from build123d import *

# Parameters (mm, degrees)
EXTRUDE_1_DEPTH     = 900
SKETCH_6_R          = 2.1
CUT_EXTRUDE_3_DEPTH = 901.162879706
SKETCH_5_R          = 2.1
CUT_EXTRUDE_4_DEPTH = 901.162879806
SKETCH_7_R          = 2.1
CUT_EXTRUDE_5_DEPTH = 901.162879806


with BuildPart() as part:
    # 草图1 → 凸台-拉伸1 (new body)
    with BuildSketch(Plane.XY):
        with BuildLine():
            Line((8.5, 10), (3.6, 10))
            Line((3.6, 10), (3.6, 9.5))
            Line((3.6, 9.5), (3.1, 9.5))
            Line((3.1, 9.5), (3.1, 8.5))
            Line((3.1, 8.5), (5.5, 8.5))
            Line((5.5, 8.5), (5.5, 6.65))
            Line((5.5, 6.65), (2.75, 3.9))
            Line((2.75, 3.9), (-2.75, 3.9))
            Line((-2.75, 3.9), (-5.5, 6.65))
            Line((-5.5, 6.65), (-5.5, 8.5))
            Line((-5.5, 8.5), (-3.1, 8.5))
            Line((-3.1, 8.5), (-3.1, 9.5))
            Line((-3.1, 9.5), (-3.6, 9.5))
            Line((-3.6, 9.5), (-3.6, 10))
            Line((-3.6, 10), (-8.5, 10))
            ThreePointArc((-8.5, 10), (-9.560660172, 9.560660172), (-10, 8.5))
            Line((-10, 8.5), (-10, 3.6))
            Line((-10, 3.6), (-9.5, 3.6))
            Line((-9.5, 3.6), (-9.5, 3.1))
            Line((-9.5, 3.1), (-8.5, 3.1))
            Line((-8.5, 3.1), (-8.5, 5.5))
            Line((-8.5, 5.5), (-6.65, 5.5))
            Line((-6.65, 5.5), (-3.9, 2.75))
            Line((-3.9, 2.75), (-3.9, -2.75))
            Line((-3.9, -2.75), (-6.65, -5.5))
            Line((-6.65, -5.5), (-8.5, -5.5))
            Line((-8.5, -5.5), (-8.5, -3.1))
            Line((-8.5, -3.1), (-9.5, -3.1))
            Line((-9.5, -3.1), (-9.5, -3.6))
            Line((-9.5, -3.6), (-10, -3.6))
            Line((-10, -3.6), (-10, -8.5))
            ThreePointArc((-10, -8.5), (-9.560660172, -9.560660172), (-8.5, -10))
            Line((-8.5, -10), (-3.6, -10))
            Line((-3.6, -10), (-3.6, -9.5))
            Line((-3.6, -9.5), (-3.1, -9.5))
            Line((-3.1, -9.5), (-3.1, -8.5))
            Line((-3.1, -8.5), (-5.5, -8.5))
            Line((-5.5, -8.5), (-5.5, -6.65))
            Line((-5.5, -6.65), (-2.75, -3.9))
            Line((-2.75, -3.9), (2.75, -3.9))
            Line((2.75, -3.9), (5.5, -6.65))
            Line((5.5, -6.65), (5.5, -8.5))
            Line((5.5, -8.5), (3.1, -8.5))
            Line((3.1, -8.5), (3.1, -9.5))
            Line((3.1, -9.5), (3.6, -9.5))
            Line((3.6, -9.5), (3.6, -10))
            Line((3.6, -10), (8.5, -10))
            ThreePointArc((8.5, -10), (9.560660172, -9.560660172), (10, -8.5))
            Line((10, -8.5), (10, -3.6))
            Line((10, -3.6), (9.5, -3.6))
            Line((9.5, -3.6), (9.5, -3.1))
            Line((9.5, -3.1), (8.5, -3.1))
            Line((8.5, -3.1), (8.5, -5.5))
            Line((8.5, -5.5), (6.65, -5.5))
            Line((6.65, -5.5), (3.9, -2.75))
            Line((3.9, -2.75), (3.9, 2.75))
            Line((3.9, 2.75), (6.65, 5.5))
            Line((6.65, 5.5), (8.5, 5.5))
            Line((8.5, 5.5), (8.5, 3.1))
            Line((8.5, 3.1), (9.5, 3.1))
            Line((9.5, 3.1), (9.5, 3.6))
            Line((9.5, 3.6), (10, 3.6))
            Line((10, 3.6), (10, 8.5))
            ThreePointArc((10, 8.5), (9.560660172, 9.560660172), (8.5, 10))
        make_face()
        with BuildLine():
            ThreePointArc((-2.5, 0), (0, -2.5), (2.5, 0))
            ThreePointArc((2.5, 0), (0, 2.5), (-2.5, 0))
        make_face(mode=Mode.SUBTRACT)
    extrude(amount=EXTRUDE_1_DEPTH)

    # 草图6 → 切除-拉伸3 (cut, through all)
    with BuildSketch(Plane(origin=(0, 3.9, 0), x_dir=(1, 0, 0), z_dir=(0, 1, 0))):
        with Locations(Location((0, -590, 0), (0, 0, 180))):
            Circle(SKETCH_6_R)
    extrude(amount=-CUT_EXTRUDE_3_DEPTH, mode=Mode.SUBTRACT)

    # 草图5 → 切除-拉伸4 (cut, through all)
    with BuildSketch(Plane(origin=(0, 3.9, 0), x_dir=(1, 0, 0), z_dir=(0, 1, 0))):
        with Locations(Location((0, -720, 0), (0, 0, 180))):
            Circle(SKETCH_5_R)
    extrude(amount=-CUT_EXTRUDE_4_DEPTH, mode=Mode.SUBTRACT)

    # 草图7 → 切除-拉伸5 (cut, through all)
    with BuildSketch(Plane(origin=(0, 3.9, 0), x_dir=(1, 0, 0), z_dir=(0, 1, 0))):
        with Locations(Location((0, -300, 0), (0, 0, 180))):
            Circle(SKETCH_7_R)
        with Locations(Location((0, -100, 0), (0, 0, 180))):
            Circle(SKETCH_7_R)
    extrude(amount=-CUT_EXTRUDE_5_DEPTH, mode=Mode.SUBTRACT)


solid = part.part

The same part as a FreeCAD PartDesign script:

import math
import FreeCAD as App
import Part
import Sketcher

V = App.Vector

doc = App.newDocument("Part")
body = doc.addObject("PartDesign::Body", "Body")

# Sketch on XY plane
sketch1 = body.newObject("Sketcher::SketchObject", "Sketch")
sketch1.AttachmentSupport = (doc.getObject("XY_Plane"), [""])
sketch1.MapMode = "FlatFace"
sketch1.addGeometry(Part.LineSegment(V(8.5, 10, 0), V(3.6, 10, 0)), False)
sketch1.addGeometry(Part.LineSegment(V(3.6, 10, 0), V(3.6, 9.5, 0)), False)
sketch1.addGeometry(Part.LineSegment(V(3.6, 9.5, 0), V(3.1, 9.5, 0)), False)
sketch1.addGeometry(Part.LineSegment(V(3.1, 9.5, 0), V(3.1, 8.5, 0)), False)
sketch1.addGeometry(Part.LineSegment(V(3.1, 8.5, 0), V(5.5, 8.5, 0)), False)
sketch1.addGeometry(Part.LineSegment(V(5.5, 8.5, 0), V(5.5, 6.7, 0)), False)
sketch1.addGeometry(Part.LineSegment(V(5.5, 6.7, 0), V(2.8, 3.9, 0)), False)
sketch1.addGeometry(Part.LineSegment(V(2.8, 3.9, 0), V(-2.8, 3.9, 0)), False)
sketch1.addGeometry(Part.LineSegment(V(-2.8, 3.9, 0), V(-5.5, 6.7, 0)), False)
sketch1.addGeometry(Part.LineSegment(V(-5.5, 6.7, 0), V(-5.5, 8.5, 0)), False)
sketch1.addGeometry(Part.LineSegment(V(-5.5, 8.5, 0), V(-3.1, 8.5, 0)), False)
sketch1.addGeometry(Part.LineSegment(V(-3.1, 8.5, 0), V(-3.1, 9.5, 0)), False)
sketch1.addGeometry(Part.LineSegment(V(-3.1, 9.5, 0), V(-3.6, 9.5, 0)), False)
sketch1.addGeometry(Part.LineSegment(V(-3.6, 9.5, 0), V(-3.6, 10, 0)), False)
sketch1.addGeometry(Part.LineSegment(V(-3.6, 10, 0), V(-8.5, 10, 0)), False)
sketch1.addGeometry(Part.ArcOfCircle(Part.Circle(V(-8.5, 8.5, 0), V(0, 0, 1), 1.5), math.radians(90), math.radians(180)), False)
sketch1.addGeometry(Part.LineSegment(V(-10, 8.5, 0), V(-10, 3.6, 0)), False)
sketch1.addGeometry(Part.LineSegment(V(-10, 3.6, 0), V(-9.5, 3.6, 0)), False)
sketch1.addGeometry(Part.LineSegment(V(-9.5, 3.6, 0), V(-9.5, 3.1, 0)), False)
sketch1.addGeometry(Part.LineSegment(V(-9.5, 3.1, 0), V(-8.5, 3.1, 0)), False)
sketch1.addGeometry(Part.LineSegment(V(-8.5, 3.1, 0), V(-8.5, 5.5, 0)), False)
sketch1.addGeometry(Part.LineSegment(V(-8.5, 5.5, 0), V(-6.7, 5.5, 0)), False)
sketch1.addGeometry(Part.LineSegment(V(-6.7, 5.5, 0), V(-3.9, 2.8, 0)), False)
sketch1.addGeometry(Part.LineSegment(V(-3.9, 2.8, 0), V(-3.9, -2.8, 0)), False)
sketch1.addGeometry(Part.LineSegment(V(-3.9, -2.8, 0), V(-6.7, -5.5, 0)), False)
sketch1.addGeometry(Part.LineSegment(V(-6.7, -5.5, 0), V(-8.5, -5.5, 0)), False)
sketch1.addGeometry(Part.LineSegment(V(-8.5, -5.5, 0), V(-8.5, -3.1, 0)), False)
sketch1.addGeometry(Part.LineSegment(V(-8.5, -3.1, 0), V(-9.5, -3.1, 0)), False)
sketch1.addGeometry(Part.LineSegment(V(-9.5, -3.1, 0), V(-9.5, -3.6, 0)), False)
sketch1.addGeometry(Part.LineSegment(V(-9.5, -3.6, 0), V(-10, -3.6, 0)), False)
sketch1.addGeometry(Part.LineSegment(V(-10, -3.6, 0), V(-10, -8.5, 0)), False)
sketch1.addGeometry(Part.ArcOfCircle(Part.Circle(V(-8.5, -8.5, 0), V(0, 0, 1), 1.5), math.radians(180), math.radians(270)), False)
sketch1.addGeometry(Part.LineSegment(V(-8.5, -10, 0), V(-3.6, -10, 0)), False)
sketch1.addGeometry(Part.LineSegment(V(-3.6, -10, 0), V(-3.6, -9.5, 0)), False)
sketch1.addGeometry(Part.LineSegment(V(-3.6, -9.5, 0), V(-3.1, -9.5, 0)), False)
sketch1.addGeometry(Part.LineSegment(V(-3.1, -9.5, 0), V(-3.1, -8.5, 0)), False)
sketch1.addGeometry(Part.LineSegment(V(-3.1, -8.5, 0), V(-5.5, -8.5, 0)), False)
sketch1.addGeometry(Part.LineSegment(V(-5.5, -8.5, 0), V(-5.5, -6.7, 0)), False)
sketch1.addGeometry(Part.LineSegment(V(-5.5, -6.7, 0), V(-2.8, -3.9, 0)), False)
sketch1.addGeometry(Part.LineSegment(V(-2.8, -3.9, 0), V(2.8, -3.9, 0)), False)
sketch1.addGeometry(Part.LineSegment(V(2.8, -3.9, 0), V(5.5, -6.7, 0)), False)
sketch1.addGeometry(Part.LineSegment(V(5.5, -6.7, 0), V(5.5, -8.5, 0)), False)
sketch1.addGeometry(Part.LineSegment(V(5.5, -8.5, 0), V(3.1, -8.5, 0)), False)
sketch1.addGeometry(Part.LineSegment(V(3.1, -8.5, 0), V(3.1, -9.5, 0)), False)
sketch1.addGeometry(Part.LineSegment(V(3.1, -9.5, 0), V(3.6, -9.5, 0)), False)
sketch1.addGeometry(Part.LineSegment(V(3.6, -9.5, 0), V(3.6, -10, 0)), False)
sketch1.addGeometry(Part.LineSegment(V(3.6, -10, 0), V(8.5, -10, 0)), False)
sketch1.addGeometry(Part.ArcOfCircle(Part.Circle(V(8.5, -8.5, 0), V(0, 0, 1), 1.5), math.radians(-90), math.radians(0)), False)
sketch1.addGeometry(Part.LineSegment(V(10, -8.5, 0), V(10, -3.6, 0)), False)
sketch1.addGeometry(Part.LineSegment(V(10, -3.6, 0), V(9.5, -3.6, 0)), False)
sketch1.addGeometry(Part.LineSegment(V(9.5, -3.6, 0), V(9.5, -3.1, 0)), False)
sketch1.addGeometry(Part.LineSegment(V(9.5, -3.1, 0), V(8.5, -3.1, 0)), False)
sketch1.addGeometry(Part.LineSegment(V(8.5, -3.1, 0), V(8.5, -5.5, 0)), False)
sketch1.addGeometry(Part.LineSegment(V(8.5, -5.5, 0), V(6.7, -5.5, 0)), False)
sketch1.addGeometry(Part.LineSegment(V(6.7, -5.5, 0), V(3.9, -2.8, 0)), False)
sketch1.addGeometry(Part.LineSegment(V(3.9, -2.8, 0), V(3.9, 2.8, 0)), False)
sketch1.addGeometry(Part.LineSegment(V(3.9, 2.8, 0), V(6.7, 5.5, 0)), False)
sketch1.addGeometry(Part.LineSegment(V(6.7, 5.5, 0), V(8.5, 5.5, 0)), False)
sketch1.addGeometry(Part.LineSegment(V(8.5, 5.5, 0), V(8.5, 3.1, 0)), False)
sketch1.addGeometry(Part.LineSegment(V(8.5, 3.1, 0), V(9.5, 3.1, 0)), False)
sketch1.addGeometry(Part.LineSegment(V(9.5, 3.1, 0), V(9.5, 3.6, 0)), False)
sketch1.addGeometry(Part.LineSegment(V(9.5, 3.6, 0), V(10, 3.6, 0)), False)
sketch1.addGeometry(Part.LineSegment(V(10, 3.6, 0), V(10, 8.5, 0)), False)
sketch1.addGeometry(Part.ArcOfCircle(Part.Circle(V(8.5, 8.5, 0), V(0, 0, 1), 1.5), math.radians(0), math.radians(90)), False)
sketch1.addGeometry(Part.Circle(V(0, 0, 0), V(0, 0, 1), 2.5), False)
sketch1.addConstraint(Sketcher.Constraint("Coincident", 0, 2, 1, 1))
sketch1.addConstraint(Sketcher.Constraint("Coincident", 1, 2, 2, 1))
sketch1.addConstraint(Sketcher.Constraint("Coincident", 2, 2, 3, 1))
sketch1.addConstraint(Sketcher.Constraint("Coincident", 3, 2, 4, 1))
sketch1.addConstraint(Sketcher.Constraint("Coincident", 4, 2, 5, 1))
sketch1.addConstraint(Sketcher.Constraint("Coincident", 5, 2, 6, 1))
sketch1.addConstraint(Sketcher.Constraint("Coincident", 6, 2, 7, 1))
sketch1.addConstraint(Sketcher.Constraint("Coincident", 7, 2, 8, 1))
sketch1.addConstraint(Sketcher.Constraint("Coincident", 8, 2, 9, 1))
sketch1.addConstraint(Sketcher.Constraint("Coincident", 9, 2, 10, 1))
sketch1.addConstraint(Sketcher.Constraint("Coincident", 10, 2, 11, 1))
sketch1.addConstraint(Sketcher.Constraint("Coincident", 11, 2, 12, 1))
sketch1.addConstraint(Sketcher.Constraint("Coincident", 12, 2, 13, 1))
sketch1.addConstraint(Sketcher.Constraint("Coincident", 13, 2, 14, 1))
sketch1.addConstraint(Sketcher.Constraint("Tangent", 14, 2, 15, 1))
sketch1.addConstraint(Sketcher.Constraint("Tangent", 15, 2, 16, 1))
sketch1.addConstraint(Sketcher.Constraint("Coincident", 16, 2, 17, 1))
sketch1.addConstraint(Sketcher.Constraint("Coincident", 17, 2, 18, 1))
sketch1.addConstraint(Sketcher.Constraint("Coincident", 18, 2, 19, 1))
sketch1.addConstraint(Sketcher.Constraint("Coincident", 19, 2, 20, 1))
sketch1.addConstraint(Sketcher.Constraint("Coincident", 20, 2, 21, 1))
sketch1.addConstraint(Sketcher.Constraint("Coincident", 21, 2, 22, 1))
sketch1.addConstraint(Sketcher.Constraint("Coincident", 22, 2, 23, 1))
sketch1.addConstraint(Sketcher.Constraint("Coincident", 23, 2, 24, 1))
sketch1.addConstraint(Sketcher.Constraint("Coincident", 24, 2, 25, 1))
sketch1.addConstraint(Sketcher.Constraint("Coincident", 25, 2, 26, 1))
sketch1.addConstraint(Sketcher.Constraint("Coincident", 26, 2, 27, 1))
sketch1.addConstraint(Sketcher.Constraint("Coincident", 27, 2, 28, 1))
sketch1.addConstraint(Sketcher.Constraint("Coincident", 28, 2, 29, 1))
sketch1.addConstraint(Sketcher.Constraint("Coincident", 29, 2, 30, 1))
sketch1.addConstraint(Sketcher.Constraint("Tangent", 30, 2, 31, 1))
sketch1.addConstraint(Sketcher.Constraint("Tangent", 31, 2, 32, 1))
sketch1.addConstraint(Sketcher.Constraint("Coincident", 32, 2, 33, 1))
sketch1.addConstraint(Sketcher.Constraint("Coincident", 33, 2, 34, 1))
sketch1.addConstraint(Sketcher.Constraint("Coincident", 34, 2, 35, 1))
sketch1.addConstraint(Sketcher.Constraint("Coincident", 35, 2, 36, 1))
sketch1.addConstraint(Sketcher.Constraint("Coincident", 36, 2, 37, 1))
sketch1.addConstraint(Sketcher.Constraint("Coincident", 37, 2, 38, 1))
sketch1.addConstraint(Sketcher.Constraint("Coincident", 38, 2, 39, 1))
sketch1.addConstraint(Sketcher.Constraint("Coincident", 39, 2, 40, 1))
sketch1.addConstraint(Sketcher.Constraint("Coincident", 40, 2, 41, 1))
sketch1.addConstraint(Sketcher.Constraint("Coincident", 41, 2, 42, 1))
sketch1.addConstraint(Sketcher.Constraint("Coincident", 42, 2, 43, 1))
sketch1.addConstraint(Sketcher.Constraint("Coincident", 43, 2, 44, 1))
sketch1.addConstraint(Sketcher.Constraint("Coincident", 44, 2, 45, 1))
sketch1.addConstraint(Sketcher.Constraint("Coincident", 45, 2, 46, 1))
sketch1.addConstraint(Sketcher.Constraint("Tangent", 46, 2, 47, 1))
sketch1.addConstraint(Sketcher.Constraint("Tangent", 47, 2, 48, 1))
sketch1.addConstraint(Sketcher.Constraint("Coincident", 48, 2, 49, 1))
sketch1.addConstraint(Sketcher.Constraint("Coincident", 49, 2, 50, 1))
sketch1.addConstraint(Sketcher.Constraint("Coincident", 50, 2, 51, 1))
sketch1.addConstraint(Sketcher.Constraint("Coincident", 51, 2, 52, 1))
sketch1.addConstraint(Sketcher.Constraint("Coincident", 52, 2, 53, 1))
sketch1.addConstraint(Sketcher.Constraint("Coincident", 53, 2, 54, 1))
sketch1.addConstraint(Sketcher.Constraint("Coincident", 54, 2, 55, 1))
sketch1.addConstraint(Sketcher.Constraint("Coincident", 55, 2, 56, 1))
sketch1.addConstraint(Sketcher.Constraint("Coincident", 56, 2, 57, 1))
sketch1.addConstraint(Sketcher.Constraint("Coincident", 57, 2, 58, 1))
sketch1.addConstraint(Sketcher.Constraint("Coincident", 58, 2, 59, 1))
sketch1.addConstraint(Sketcher.Constraint("Coincident", 59, 2, 60, 1))
sketch1.addConstraint(Sketcher.Constraint("Coincident", 60, 2, 61, 1))
sketch1.addConstraint(Sketcher.Constraint("Coincident", 61, 2, 62, 1))
sketch1.addConstraint(Sketcher.Constraint("Tangent", 62, 2, 63, 1))
sketch1.addConstraint(Sketcher.Constraint("Tangent", 63, 2, 0, 1))
sketch1.addConstraint(Sketcher.Constraint("Horizontal", 0))
sketch1.addConstraint(Sketcher.Constraint("Vertical", 1))
sketch1.addConstraint(Sketcher.Constraint("Horizontal", 2))
sketch1.addConstraint(Sketcher.Constraint("Vertical", 3))
sketch1.addConstraint(Sketcher.Constraint("Horizontal", 4))
sketch1.addConstraint(Sketcher.Constraint("Vertical", 5))
sketch1.addConstraint(Sketcher.Constraint("Horizontal", 7))
sketch1.addConstraint(Sketcher.Constraint("Vertical", 9))
sketch1.addConstraint(Sketcher.Constraint("Horizontal", 10))
sketch1.addConstraint(Sketcher.Constraint("Vertical", 11))
sketch1.addConstraint(Sketcher.Constraint("Horizontal", 12))
sketch1.addConstraint(Sketcher.Constraint("Vertical", 13))
sketch1.addConstraint(Sketcher.Constraint("Horizontal", 14))
sketch1.addConstraint(Sketcher.Constraint("Vertical", 16))
sketch1.addConstraint(Sketcher.Constraint("Horizontal", 17))
sketch1.addConstraint(Sketcher.Constraint("Vertical", 18))
sketch1.addConstraint(Sketcher.Constraint("Horizontal", 19))
sketch1.addConstraint(Sketcher.Constraint("Vertical", 20))
sketch1.addConstraint(Sketcher.Constraint("Horizontal", 21))
sketch1.addConstraint(Sketcher.Constraint("Vertical", 23))
sketch1.addConstraint(Sketcher.Constraint("Horizontal", 25))
sketch1.addConstraint(Sketcher.Constraint("Vertical", 26))
sketch1.addConstraint(Sketcher.Constraint("Horizontal", 27))
sketch1.addConstraint(Sketcher.Constraint("Vertical", 28))
sketch1.addConstraint(Sketcher.Constraint("Horizontal", 29))
sketch1.addConstraint(Sketcher.Constraint("Vertical", 30))
sketch1.addConstraint(Sketcher.Constraint("Horizontal", 32))
sketch1.addConstraint(Sketcher.Constraint("Vertical", 33))
sketch1.addConstraint(Sketcher.Constraint("Horizontal", 34))
sketch1.addConstraint(Sketcher.Constraint("Vertical", 35))
sketch1.addConstraint(Sketcher.Constraint("Horizontal", 36))
sketch1.addConstraint(Sketcher.Constraint("Vertical", 37))
sketch1.addConstraint(Sketcher.Constraint("Horizontal", 39))
sketch1.addConstraint(Sketcher.Constraint("Vertical", 41))
sketch1.addConstraint(Sketcher.Constraint("Horizontal", 42))
sketch1.addConstraint(Sketcher.Constraint("Vertical", 43))
sketch1.addConstraint(Sketcher.Constraint("Horizontal", 44))
sketch1.addConstraint(Sketcher.Constraint("Vertical", 45))
sketch1.addConstraint(Sketcher.Constraint("Horizontal", 46))
sketch1.addConstraint(Sketcher.Constraint("Vertical", 48))
sketch1.addConstraint(Sketcher.Constraint("Horizontal", 49))
sketch1.addConstraint(Sketcher.Constraint("Vertical", 50))
sketch1.addConstraint(Sketcher.Constraint("Horizontal", 51))
sketch1.addConstraint(Sketcher.Constraint("Vertical", 52))
sketch1.addConstraint(Sketcher.Constraint("Horizontal", 53))
sketch1.addConstraint(Sketcher.Constraint("Vertical", 55))
sketch1.addConstraint(Sketcher.Constraint("Horizontal", 57))
sketch1.addConstraint(Sketcher.Constraint("Vertical", 58))
sketch1.addConstraint(Sketcher.Constraint("Horizontal", 59))
sketch1.addConstraint(Sketcher.Constraint("Vertical", 60))
sketch1.addConstraint(Sketcher.Constraint("Horizontal", 61))
sketch1.addConstraint(Sketcher.Constraint("Vertical", 62))
sketch1.addConstraint(Sketcher.Constraint("Coincident", 64, 3, -1, 1))
sketch1.addConstraint(Sketcher.Constraint("Equal", 15, 31))
sketch1.addConstraint(Sketcher.Constraint("Equal", 31, 47))
sketch1.addConstraint(Sketcher.Constraint("Equal", 47, 63))
sketch1.addConstraint(Sketcher.Constraint("Symmetric", 15, 3, 47, 3, -1, 1))
sketch1.addConstraint(Sketcher.Constraint("Symmetric", 31, 3, 63, 3, -1, 1))
sketch1.addConstraint(Sketcher.Constraint("Symmetric", 1, 2, 33, 2, -1, 1))
sketch1.addConstraint(Sketcher.Constraint("Symmetric", 3, 2, 35, 2, -1, 1))
sketch1.addConstraint(Sketcher.Constraint("Symmetric", 5, 2, 37, 2, -1, 1))
sketch1.addConstraint(Sketcher.Constraint("Symmetric", 6, 2, 38, 2, -1, 1))
sketch1.addConstraint(Sketcher.Constraint("Symmetric", 8, 2, 40, 2, -1, 1))
sketch1.addConstraint(Sketcher.Constraint("Symmetric", 10, 2, 42, 2, -1, 1))
sketch1.addConstraint(Sketcher.Constraint("Symmetric", 12, 2, 44, 2, -1, 1))
sketch1.addConstraint(Sketcher.Constraint("Symmetric", 17, 2, 49, 2, -1, 1))
sketch1.addConstraint(Sketcher.Constraint("Symmetric", 19, 2, 51, 2, -1, 1))
sketch1.addConstraint(Sketcher.Constraint("Symmetric", 21, 2, 53, 2, -1, 1))
sketch1.addConstraint(Sketcher.Constraint("Symmetric", 22, 2, 54, 2, -1, 1))
sketch1.addConstraint(Sketcher.Constraint("Symmetric", 24, 2, 56, 2, -1, 1))
sketch1.addConstraint(Sketcher.Constraint("Symmetric", 26, 2, 58, 2, -1, 1))
sketch1.addConstraint(Sketcher.Constraint("Symmetric", 28, 2, 60, 2, -1, 1))
sketch1.addConstraint(Sketcher.Constraint("Symmetric", 31, 3, 47, 3, -2))
sketch1.addConstraint(Sketcher.Constraint("Symmetric", 5, 2, 8, 2, -2))
sketch1.addConstraint(Sketcher.Constraint("Symmetric", 3, 2, 10, 2, -2))
sketch1.addConstraint(Sketcher.Constraint("Symmetric", 1, 2, 12, 2, -2))
sketch1.addConstraint(Sketcher.Constraint("Symmetric", 28, 2, 49, 2, -2))
sketch1.addConstraint(Sketcher.Constraint("Symmetric", 26, 2, 51, 2, -2))
sketch1.addConstraint(Sketcher.Constraint("Symmetric", 24, 2, 53, 2, -2))
sketch1.addConstraint(Sketcher.Constraint("Perpendicular", 6, 8))
sketch1.addConstraint(Sketcher.Constraint("Parallel", 8, 22))
sketch1.addConstraint(Sketcher.Constraint("Perpendicular", 22, 24))
sketch1.addConstraint(Sketcher.Constraint("Perpendicular", 38, 40))
sketch1.addConstraint(Sketcher.Constraint("Perpendicular", 54, 56))
sketch1.addConstraint(Sketcher.Constraint("Horizontal", 63, 3, 3, 2))
sketch1.addConstraint(Sketcher.Constraint("Horizontal", 23, 2, 54, 2))
sketch1.addConstraint(Sketcher.Constraint("Vertical", 14, 2, 19, 2))
sketch1.addConstraint(Sketcher.Constraint("Equal", 12, 17))
sketch1.addConstraint(Sketcher.Constraint("Equal", 61, 1))
sketch1.addConstraint(Sketcher.Constraint("Equal", 57, 5))
sketch1.addConstraint(Sketcher.Constraint("Equal", 46, 16))
sketch1.addConstraint(Sketcher.Constraint("Equal", 13, 18))
sketch1.addConstraint(Sketcher.Constraint("Equal", 42, 20))
sketch1.addConstraint(Sketcher.Constraint("Equal", 39, 23))
sketch1.addConstraint(Sketcher.Constraint("Equal", 8, 22))
sketch1.addConstraint(Sketcher.Constraint("Diameter", 64, 5.0))
sketch1.addConstraint(Sketcher.Constraint("Radius", 15, 1.5))
sketch1.addConstraint(Sketcher.Constraint("DistanceX", 19, 1, 19, 2, 1.0))
sketch1.addConstraint(Sketcher.Constraint("DistanceX", 0, 2, 0, 1, 4.9))
sketch1.addConstraint(Sketcher.Constraint("DistanceX", 4, 1, 4, 2, 2.4))
sketch1.addConstraint(Sketcher.Constraint("DistanceX", 7, 2, 7, 1, 5.5))
sketch1.addConstraint(Sketcher.Constraint("DistanceY", -1, 1, 0, 2, 10.0))
sketch1.addConstraint(Sketcher.Constraint("DistanceX", 21, 1, 21, 2, 1.85))
pad1 = body.newObject("PartDesign::Pad", "Pad")
pad1.Profile = sketch1
pad1.Length = 900

# Sketch on XZ plane
sketch2 = body.newObject("Sketcher::SketchObject", "Sketch001")
sketch2.AttachmentSupport = (doc.getObject("XZ_Plane"), [""])
sketch2.MapMode = "FlatFace"
sketch2.AttachmentOffset = App.Placement(V(0, 0, -3.9), App.Rotation())
sketch2.addGeometry(Part.Circle(V(0, 590, 0), V(0, 0, 1), 2.1), False)
sketch2.addConstraint(Sketcher.Constraint("PointOnObject", 0, 3, -2))
sketch2.addConstraint(Sketcher.Constraint("Diameter", 0, 4.2))
sketch2.addConstraint(Sketcher.Constraint("DistanceY", -1, 1, 0, 3, 590.0))
pocket1 = body.newObject("PartDesign::Pocket", "Pocket")
pocket1.Profile = sketch2
pocket1.Type = "ThroughAll"
pocket1.Reversed = True

# Sketch on XZ plane
sketch3 = body.newObject("Sketcher::SketchObject", "Sketch002")
sketch3.AttachmentSupport = (doc.getObject("XZ_Plane"), [""])
sketch3.MapMode = "FlatFace"
sketch3.AttachmentOffset = App.Placement(V(0, 0, -3.9), App.Rotation())
sketch3.addGeometry(Part.Circle(V(0, 720, 0), V(0, 0, 1), 2.1), False)
sketch3.addConstraint(Sketcher.Constraint("PointOnObject", 0, 3, -2))
sketch3.addConstraint(Sketcher.Constraint("Diameter", 0, 4.2))
sketch3.addConstraint(Sketcher.Constraint("DistanceY", -1, 1, 0, 3, 720.0))
pocket2 = body.newObject("PartDesign::Pocket", "Pocket001")
pocket2.Profile = sketch3
pocket2.Type = "ThroughAll"
pocket2.Reversed = True

# Sketch on XZ plane
sketch4 = body.newObject("Sketcher::SketchObject", "Sketch003")
sketch4.AttachmentSupport = (doc.getObject("XZ_Plane"), [""])
sketch4.MapMode = "FlatFace"
sketch4.AttachmentOffset = App.Placement(V(0, 0, -3.9), App.Rotation())
sketch4.addGeometry(Part.Circle(V(0, 300, 0), V(0, 0, 1), 2.1), False)
sketch4.addGeometry(Part.Circle(V(0, 100, 0), V(0, 0, 1), 2.1), False)
sketch4.addConstraint(Sketcher.Constraint("Equal", 0, 1))
sketch4.addConstraint(Sketcher.Constraint("PointOnObject", 0, 3, -2))
sketch4.addConstraint(Sketcher.Constraint("PointOnObject", 1, 3, -2))
sketch4.addConstraint(Sketcher.Constraint("Diameter", 0, 4.2))
sketch4.addConstraint(Sketcher.Constraint("DistanceY", -1, 1, 0, 3, 300.0))
sketch4.addConstraint(Sketcher.Constraint("DistanceY", -1, 1, 1, 3, 100.0))
pocket3 = body.newObject("PartDesign::Pocket", "Pocket002")
pocket3.Profile = sketch4
pocket3.Type = "ThroughAll"
pocket3.Reversed = True

doc.recompute()
